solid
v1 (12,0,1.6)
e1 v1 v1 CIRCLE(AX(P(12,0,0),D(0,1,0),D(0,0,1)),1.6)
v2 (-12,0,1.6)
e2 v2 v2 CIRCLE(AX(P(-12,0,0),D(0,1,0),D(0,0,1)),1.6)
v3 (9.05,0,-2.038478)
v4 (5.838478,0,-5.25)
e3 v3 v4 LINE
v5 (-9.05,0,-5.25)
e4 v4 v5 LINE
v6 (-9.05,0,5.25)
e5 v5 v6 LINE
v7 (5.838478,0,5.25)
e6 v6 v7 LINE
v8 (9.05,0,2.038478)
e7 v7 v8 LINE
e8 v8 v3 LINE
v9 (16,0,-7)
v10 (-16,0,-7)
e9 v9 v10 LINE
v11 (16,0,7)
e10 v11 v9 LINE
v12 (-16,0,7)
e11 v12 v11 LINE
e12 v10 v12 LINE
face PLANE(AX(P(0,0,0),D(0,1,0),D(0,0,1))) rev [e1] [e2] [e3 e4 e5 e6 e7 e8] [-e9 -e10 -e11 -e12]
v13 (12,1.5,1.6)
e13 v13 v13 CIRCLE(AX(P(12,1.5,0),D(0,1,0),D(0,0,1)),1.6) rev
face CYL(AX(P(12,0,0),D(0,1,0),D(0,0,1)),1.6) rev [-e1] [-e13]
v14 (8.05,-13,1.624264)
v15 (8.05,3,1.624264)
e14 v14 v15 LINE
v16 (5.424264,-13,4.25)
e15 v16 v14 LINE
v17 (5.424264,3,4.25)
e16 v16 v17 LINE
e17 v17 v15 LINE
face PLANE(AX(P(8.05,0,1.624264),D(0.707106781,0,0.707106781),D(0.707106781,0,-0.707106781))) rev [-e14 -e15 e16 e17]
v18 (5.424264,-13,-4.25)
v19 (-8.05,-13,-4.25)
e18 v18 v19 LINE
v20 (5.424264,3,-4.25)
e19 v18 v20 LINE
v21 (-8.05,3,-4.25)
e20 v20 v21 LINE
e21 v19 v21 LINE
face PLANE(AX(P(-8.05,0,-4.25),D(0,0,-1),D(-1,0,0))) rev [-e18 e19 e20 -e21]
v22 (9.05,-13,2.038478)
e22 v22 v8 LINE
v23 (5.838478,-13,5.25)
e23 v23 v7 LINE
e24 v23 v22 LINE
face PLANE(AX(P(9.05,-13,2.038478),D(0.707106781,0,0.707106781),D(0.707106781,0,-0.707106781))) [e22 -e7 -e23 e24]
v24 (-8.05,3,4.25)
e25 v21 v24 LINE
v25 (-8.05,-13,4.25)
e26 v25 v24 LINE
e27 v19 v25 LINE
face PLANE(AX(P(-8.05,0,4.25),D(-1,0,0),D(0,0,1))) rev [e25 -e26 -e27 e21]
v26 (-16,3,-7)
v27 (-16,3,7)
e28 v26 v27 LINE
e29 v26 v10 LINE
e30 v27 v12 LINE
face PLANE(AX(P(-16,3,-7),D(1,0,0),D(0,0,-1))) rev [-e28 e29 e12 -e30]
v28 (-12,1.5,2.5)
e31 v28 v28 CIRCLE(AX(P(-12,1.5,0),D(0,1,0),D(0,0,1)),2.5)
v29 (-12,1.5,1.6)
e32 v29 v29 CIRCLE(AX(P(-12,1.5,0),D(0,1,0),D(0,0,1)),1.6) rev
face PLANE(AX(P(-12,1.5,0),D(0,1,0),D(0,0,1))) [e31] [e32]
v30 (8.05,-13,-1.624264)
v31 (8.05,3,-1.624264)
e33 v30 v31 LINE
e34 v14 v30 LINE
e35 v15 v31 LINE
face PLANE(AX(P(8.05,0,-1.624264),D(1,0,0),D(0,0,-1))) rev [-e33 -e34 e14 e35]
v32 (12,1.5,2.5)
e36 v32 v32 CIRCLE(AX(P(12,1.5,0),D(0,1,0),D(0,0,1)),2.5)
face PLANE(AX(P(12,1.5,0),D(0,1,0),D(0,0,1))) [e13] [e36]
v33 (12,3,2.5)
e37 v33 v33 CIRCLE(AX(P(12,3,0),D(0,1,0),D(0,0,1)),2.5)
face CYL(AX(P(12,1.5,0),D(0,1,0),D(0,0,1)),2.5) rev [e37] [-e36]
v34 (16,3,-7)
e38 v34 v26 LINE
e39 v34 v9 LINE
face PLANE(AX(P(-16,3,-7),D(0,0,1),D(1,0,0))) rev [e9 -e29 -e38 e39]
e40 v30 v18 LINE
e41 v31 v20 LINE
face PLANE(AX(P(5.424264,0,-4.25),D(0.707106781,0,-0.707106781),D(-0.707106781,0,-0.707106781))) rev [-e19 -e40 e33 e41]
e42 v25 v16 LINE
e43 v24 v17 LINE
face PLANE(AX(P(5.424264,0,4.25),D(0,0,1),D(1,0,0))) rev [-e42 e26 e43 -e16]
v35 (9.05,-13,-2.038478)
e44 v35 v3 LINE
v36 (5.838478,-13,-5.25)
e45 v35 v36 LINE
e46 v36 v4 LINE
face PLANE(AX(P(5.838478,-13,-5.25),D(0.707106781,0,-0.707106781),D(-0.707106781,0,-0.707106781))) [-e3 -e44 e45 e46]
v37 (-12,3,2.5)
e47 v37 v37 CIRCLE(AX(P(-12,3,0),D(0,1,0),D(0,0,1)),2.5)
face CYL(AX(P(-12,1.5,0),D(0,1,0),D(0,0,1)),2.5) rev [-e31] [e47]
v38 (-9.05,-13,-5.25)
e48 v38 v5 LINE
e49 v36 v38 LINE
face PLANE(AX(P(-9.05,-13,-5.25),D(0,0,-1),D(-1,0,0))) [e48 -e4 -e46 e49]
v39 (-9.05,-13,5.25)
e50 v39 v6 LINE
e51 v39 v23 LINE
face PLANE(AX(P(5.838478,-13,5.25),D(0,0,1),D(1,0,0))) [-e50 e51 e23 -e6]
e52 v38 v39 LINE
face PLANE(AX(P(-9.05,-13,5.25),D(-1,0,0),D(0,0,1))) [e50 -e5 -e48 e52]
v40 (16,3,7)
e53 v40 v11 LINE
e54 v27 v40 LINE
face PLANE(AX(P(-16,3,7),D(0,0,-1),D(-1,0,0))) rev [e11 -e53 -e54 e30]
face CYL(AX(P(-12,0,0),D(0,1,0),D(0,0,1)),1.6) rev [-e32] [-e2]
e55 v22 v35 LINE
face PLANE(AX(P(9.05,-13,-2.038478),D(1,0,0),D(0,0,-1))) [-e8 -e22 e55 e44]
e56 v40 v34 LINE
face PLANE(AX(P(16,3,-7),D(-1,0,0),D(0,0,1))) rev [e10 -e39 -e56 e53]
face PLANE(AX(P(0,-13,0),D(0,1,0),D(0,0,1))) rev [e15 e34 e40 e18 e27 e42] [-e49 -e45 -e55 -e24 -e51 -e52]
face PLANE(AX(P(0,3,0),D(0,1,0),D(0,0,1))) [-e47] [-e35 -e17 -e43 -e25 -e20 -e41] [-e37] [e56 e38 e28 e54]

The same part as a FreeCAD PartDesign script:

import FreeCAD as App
import Part
import Sketcher

V = App.Vector
Q = App.Units.Quantity

doc = App.newDocument("Part")
body = doc.addObject("PartDesign::Body", "Body")

# Sketch on XZ plane
sketch1 = body.newObject("Sketcher::SketchObject", "Sketch")
sketch1.AttachmentSupport = (doc.getObject("XZ_Plane"), [""])
sketch1.MapMode = "FlatFace"
sketch1.addGeometry([
    Part.LineSegment(V(-16, -7, 0), V(-16, 7, 0)),
    Part.LineSegment(V(-16, 7, 0), V(16, 7, 0)),
    Part.LineSegment(V(16, 7, 0), V(16, -7, 0)),
    Part.LineSegment(V(16, -7, 0), V(-16, -7, 0)),
], False)
sketch1.addConstraint([
    Sketcher.Constraint("Coincident", 0, 2, 1, 1),
    Sketcher.Constraint("Coincident", 1, 2, 2, 1),
    Sketcher.Constraint("Coincident", 2, 2, 3, 1),
    Sketcher.Constraint("Coincident", 3, 2, 0, 1),
    Sketcher.Constraint("Vertical", 0),
    Sketcher.Constraint("Horizontal", 1),
    Sketcher.Constraint("Vertical", 2),
    Sketcher.Constraint("Horizontal", 3),
    Sketcher.Constraint("Symmetric", 0, 2, 2, 2, -1, 1),
    Sketcher.Constraint("DistanceX", 1, 1, 1, 2, Q("32 mm")),
    Sketcher.Constraint("DistanceY", 0, 1, 0, 2, Q("14 mm")),
])
pad1 = body.newObject("PartDesign::Pad", "Pad")
pad1.Profile = sketch1
pad1.Length = 3
pad1.Reversed = True

# Sketch on XZ plane
sketch2 = body.newObject("Sketcher::SketchObject", "Sketch001")
sketch2.AttachmentSupport = (doc.getObject("XZ_Plane"), [""])
sketch2.MapMode = "FlatFace"
sketch2.AttachmentOffset = App.Placement(V(0, 0, -3), App.Rotation())
sketch2.addGeometry([
    Part.LineSegment(V(-8.1, 4.2, 0), V(5.4, 4.2, 0)),  # 0
    Part.LineSegment(V(5.4, 4.2, 0), V(8.1, 1.6, 0)),  # 1
    Part.LineSegment(V(8.1, 1.6, 0), V(8.1, -1.6, 0)),  # 2
    Part.LineSegment(V(8.1, -1.6, 0), V(5.4, -4.2, 0)),  # 3
    Part.LineSegment(V(5.4, -4.2, 0), V(-8.1, -4.2, 0)),  # 4
    Part.LineSegment(V(-8.1, -4.2, 0), V(-8.1, 4.2, 0)),  # 5
], False)
sketch2.addConstraint([
    Sketcher.Constraint("Coincident", 0, 2, 1, 1),
    Sketcher.Constraint("Coincident", 1, 2, 2, 1),
    Sketcher.Constraint("Coincident", 2, 2, 3, 1),
    Sketcher.Constraint("Coincident", 3, 2, 4, 1),
    Sketcher.Constraint("Coincident", 4, 2, 5, 1),
    Sketcher.Constraint("Coincident", 5, 2, 0, 1),
    Sketcher.Constraint("Horizontal", 0),
    Sketcher.Constraint("Vertical", 2),
    Sketcher.Constraint("Horizontal", 4),
    Sketcher.Constraint("Vertical", 5),
    Sketcher.Constraint("Symmetric", 0, 2, 3, 2, -1),
    Sketcher.Constraint("Perpendicular", 1, 3),
    Sketcher.Constraint("Equal", 1, 3),
    Sketcher.Constraint("DistanceY", 5, 1, 5, 2, Q("8.5 mm")),
    Sketcher.Constraint("DistanceX", 4, 2, 2, 2, Q("16.1 mm")),
    Sketcher.Constraint("DistanceX", -1, 1, 1, 2, Q("8.05 mm")),
    Sketcher.Constraint("DistanceY", 2, 2, 2, 1, Q("3.248528 mm")),
])
pocket1 = body.newObject("PartDesign::Pocket", "Pocket")
pocket1.Profile = sketch2
pocket1.Length = 3
pocket1.Reversed = True

# Sketch on XZ plane
sketch3 = body.newObject("Sketcher::SketchObject", "Sketch002")
sketch3.AttachmentSupport = (doc.getObject("XZ_Plane"), [""])
sketch3.MapMode = "FlatFace"
sketch3.AttachmentOffset = App.Placement(V(0, 0, -3), App.Rotation())
sketch3.addGeometry([
    Part.LineSegment(V(-9.1, 5.2, 0), V(5.8, 5.2, 0)),  # 0
    Part.LineSegment(V(5.8, 5.2, 0), V(9.1, 2, 0)),  # 1
    Part.LineSegment(V(9.1, 2, 0), V(9.1, -2, 0)),  # 2
    Part.LineSegment(V(9.1, -2, 0), V(5.8, -5.2, 0)),  # 3
    Part.LineSegment(V(5.8, -5.2, 0), V(-9.1, -5.2, 0)),  # 4
    Part.LineSegment(V(-9.1, -5.2, 0), V(-9.1, 5.2, 0)),  # 5
    Part.LineSegment(V(-8.1, 4.2, 0), V(-8.1, -4.2, 0)),  # 6
    Part.LineSegment(V(-8.1, -4.2, 0), V(5.4, -4.2, 0)),  # 7
    Part.LineSegment(V(5.4, -4.2, 0), V(8.1, -1.6, 0)),  # 8
    Part.LineSegment(V(8.1, -1.6, 0), V(8.1, 1.6, 0)),  # 9
    Part.LineSegment(V(8.1, 1.6, 0), V(5.4, 4.2, 0)),  # 10
    Part.LineSegment(V(5.4, 4.2, 0), V(-8.1, 4.2, 0)),  # 11
], False)
sketch3.addConstraint([
    Sketcher.Constraint("Coincident", 0, 2, 1, 1),
    Sketcher.Constraint("Coincident", 1, 2, 2, 1),
    Sketcher.Constraint("Coincident", 2, 2, 3, 1),
    Sketcher.Constraint("Coincident", 3, 2, 4, 1),
    Sketcher.Constraint("Coincident", 4, 2, 5, 1),
    Sketcher.Constraint("Coincident", 5, 2, 0, 1),
    Sketcher.Constraint("Coincident", 6, 2, 7, 1),
    Sketcher.Constraint("Coincident", 7, 2, 8, 1),
    Sketcher.Constraint("Coincident", 8, 2, 9, 1),
    Sketcher.Constraint("Coincident", 9, 2, 10, 1),
    Sketcher.Constraint("Coincident", 10, 2, 11, 1),
    Sketcher.Constraint("Coincident", 11, 2, 6, 1),
    Sketcher.Constraint("Horizontal", 0),
    Sketcher.Constraint("Vertical", 2),
    Sketcher.Constraint("Horizontal", 4),
    Sketcher.Constraint("Vertical", 5),
    Sketcher.Constraint("Vertical", 6),
    Sketcher.Constraint("Horizontal", 7),
    Sketcher.Constraint("Vertical", 9),
    Sketcher.Constraint("Horizontal", 11),
    Sketcher.Constraint("Symmetric", 0, 2, 3, 2, -1),
    Sketcher.Constraint("Symmetric", 7, 2, 10, 2, -1),
    Sketcher.Constraint("Perpendicular", 1, 3),
    Sketcher.Constraint("Parallel", 3, 8),
    Sketcher.Constraint("Perpendicular", 8, 10),
    Sketcher.Constraint("Equal", 1, 3),
    Sketcher.Constraint("DistanceY", 5, 1, 5, 2, Q("10.5 mm")),
    Sketcher.Constraint("DistanceY", 6, 2, 6, 1, Q("8.5 mm")),
    Sketcher.Constraint("DistanceX", 4, 2, 6, 2, Q("1 mm")),
    Sketcher.Constraint("DistanceX", 8, 2, 2, 2, Q("1 mm")),
    Sketcher.Constraint("DistanceX", 4, 2, 2, 2, Q("18.1 mm")),
    Sketcher.Constraint("DistanceX", -1, 1, 1, 2, Q("9.05 mm")),
    Sketcher.Constraint("DistanceY", 9, 1, 9, 2, Q("3.248528 mm")),
    Sketcher.Constraint("Distance", 1, Q("4.541778 mm")),
])
pad2 = body.newObject("PartDesign::Pad", "Pad001")
pad2.Profile = sketch3
pad2.Length = 16

# Sketch on XZ plane
sketch4 = body.newObject("Sketcher::SketchObject", "Sketch003")
sketch4.AttachmentSupport = (doc.getObject("XZ_Plane"), [""])
sketch4.MapMode = "FlatFace"
sketch4.AttachmentOffset = App.Placement(V(0, 0, -3), App.Rotation())
sketch4.addGeometry([
    Part.Circle(V(-12, 0, 0), V(0, 0, 1), 1.6),
    Part.Circle(V(12, 0, 0), V(0, 0, 1), 1.6),
], False)
sketch4.addConstraint([
    Sketcher.Constraint("Equal", 0, 1),
    Sketcher.Constraint("Symmetric", 0, 3, 1, 3, -1, 1),
    Sketcher.Constraint("PointOnObject", 0, 3, -1),
    Sketcher.Constraint("Diameter", 0, Q("3.2 mm")),
    Sketcher.Constraint("DistanceX", 0, 3, -1, 1, Q("12 mm")),
])
pocket2 = body.newObject("PartDesign::Pocket", "Pocket001")
pocket2.Profile = sketch4
pocket2.Length = 3
pocket2.Reversed = True

# Sketch on XZ plane
sketch5 = body.newObject("Sketcher::SketchObject", "Sketch004")
sketch5.AttachmentSupport = (doc.getObject("XZ_Plane"), [""])
sketch5.MapMode = "FlatFace"
sketch5.AttachmentOffset = App.Placement(V(0, 0, -3), App.Rotation())
sketch5.addGeometry([
    Part.Circle(V(-12, 0, 0), V(0, 0, 1), 2.5),
    Part.Circle(V(12, 0, 0), V(0, 0, 1), 2.5),
], False)
sketch5.addConstraint([
    Sketcher.Constraint("Equal", 0, 1),
    Sketcher.Constraint("Symmetric", 0, 3, 1, 3, -1, 1),
    Sketcher.Constraint("PointOnObject", 0, 3, -1),
    Sketcher.Constraint("Diameter", 0, Q("5 mm")),
    Sketcher.Constraint("DistanceX", 0, 3, -1, 1, Q("12 mm")),
])
pocket3 = body.newObject("PartDesign::Pocket", "Pocket002")
pocket3.Profile = sketch5
pocket3.Length = 1.5
pocket3.Reversed = True

doc.recompute()
